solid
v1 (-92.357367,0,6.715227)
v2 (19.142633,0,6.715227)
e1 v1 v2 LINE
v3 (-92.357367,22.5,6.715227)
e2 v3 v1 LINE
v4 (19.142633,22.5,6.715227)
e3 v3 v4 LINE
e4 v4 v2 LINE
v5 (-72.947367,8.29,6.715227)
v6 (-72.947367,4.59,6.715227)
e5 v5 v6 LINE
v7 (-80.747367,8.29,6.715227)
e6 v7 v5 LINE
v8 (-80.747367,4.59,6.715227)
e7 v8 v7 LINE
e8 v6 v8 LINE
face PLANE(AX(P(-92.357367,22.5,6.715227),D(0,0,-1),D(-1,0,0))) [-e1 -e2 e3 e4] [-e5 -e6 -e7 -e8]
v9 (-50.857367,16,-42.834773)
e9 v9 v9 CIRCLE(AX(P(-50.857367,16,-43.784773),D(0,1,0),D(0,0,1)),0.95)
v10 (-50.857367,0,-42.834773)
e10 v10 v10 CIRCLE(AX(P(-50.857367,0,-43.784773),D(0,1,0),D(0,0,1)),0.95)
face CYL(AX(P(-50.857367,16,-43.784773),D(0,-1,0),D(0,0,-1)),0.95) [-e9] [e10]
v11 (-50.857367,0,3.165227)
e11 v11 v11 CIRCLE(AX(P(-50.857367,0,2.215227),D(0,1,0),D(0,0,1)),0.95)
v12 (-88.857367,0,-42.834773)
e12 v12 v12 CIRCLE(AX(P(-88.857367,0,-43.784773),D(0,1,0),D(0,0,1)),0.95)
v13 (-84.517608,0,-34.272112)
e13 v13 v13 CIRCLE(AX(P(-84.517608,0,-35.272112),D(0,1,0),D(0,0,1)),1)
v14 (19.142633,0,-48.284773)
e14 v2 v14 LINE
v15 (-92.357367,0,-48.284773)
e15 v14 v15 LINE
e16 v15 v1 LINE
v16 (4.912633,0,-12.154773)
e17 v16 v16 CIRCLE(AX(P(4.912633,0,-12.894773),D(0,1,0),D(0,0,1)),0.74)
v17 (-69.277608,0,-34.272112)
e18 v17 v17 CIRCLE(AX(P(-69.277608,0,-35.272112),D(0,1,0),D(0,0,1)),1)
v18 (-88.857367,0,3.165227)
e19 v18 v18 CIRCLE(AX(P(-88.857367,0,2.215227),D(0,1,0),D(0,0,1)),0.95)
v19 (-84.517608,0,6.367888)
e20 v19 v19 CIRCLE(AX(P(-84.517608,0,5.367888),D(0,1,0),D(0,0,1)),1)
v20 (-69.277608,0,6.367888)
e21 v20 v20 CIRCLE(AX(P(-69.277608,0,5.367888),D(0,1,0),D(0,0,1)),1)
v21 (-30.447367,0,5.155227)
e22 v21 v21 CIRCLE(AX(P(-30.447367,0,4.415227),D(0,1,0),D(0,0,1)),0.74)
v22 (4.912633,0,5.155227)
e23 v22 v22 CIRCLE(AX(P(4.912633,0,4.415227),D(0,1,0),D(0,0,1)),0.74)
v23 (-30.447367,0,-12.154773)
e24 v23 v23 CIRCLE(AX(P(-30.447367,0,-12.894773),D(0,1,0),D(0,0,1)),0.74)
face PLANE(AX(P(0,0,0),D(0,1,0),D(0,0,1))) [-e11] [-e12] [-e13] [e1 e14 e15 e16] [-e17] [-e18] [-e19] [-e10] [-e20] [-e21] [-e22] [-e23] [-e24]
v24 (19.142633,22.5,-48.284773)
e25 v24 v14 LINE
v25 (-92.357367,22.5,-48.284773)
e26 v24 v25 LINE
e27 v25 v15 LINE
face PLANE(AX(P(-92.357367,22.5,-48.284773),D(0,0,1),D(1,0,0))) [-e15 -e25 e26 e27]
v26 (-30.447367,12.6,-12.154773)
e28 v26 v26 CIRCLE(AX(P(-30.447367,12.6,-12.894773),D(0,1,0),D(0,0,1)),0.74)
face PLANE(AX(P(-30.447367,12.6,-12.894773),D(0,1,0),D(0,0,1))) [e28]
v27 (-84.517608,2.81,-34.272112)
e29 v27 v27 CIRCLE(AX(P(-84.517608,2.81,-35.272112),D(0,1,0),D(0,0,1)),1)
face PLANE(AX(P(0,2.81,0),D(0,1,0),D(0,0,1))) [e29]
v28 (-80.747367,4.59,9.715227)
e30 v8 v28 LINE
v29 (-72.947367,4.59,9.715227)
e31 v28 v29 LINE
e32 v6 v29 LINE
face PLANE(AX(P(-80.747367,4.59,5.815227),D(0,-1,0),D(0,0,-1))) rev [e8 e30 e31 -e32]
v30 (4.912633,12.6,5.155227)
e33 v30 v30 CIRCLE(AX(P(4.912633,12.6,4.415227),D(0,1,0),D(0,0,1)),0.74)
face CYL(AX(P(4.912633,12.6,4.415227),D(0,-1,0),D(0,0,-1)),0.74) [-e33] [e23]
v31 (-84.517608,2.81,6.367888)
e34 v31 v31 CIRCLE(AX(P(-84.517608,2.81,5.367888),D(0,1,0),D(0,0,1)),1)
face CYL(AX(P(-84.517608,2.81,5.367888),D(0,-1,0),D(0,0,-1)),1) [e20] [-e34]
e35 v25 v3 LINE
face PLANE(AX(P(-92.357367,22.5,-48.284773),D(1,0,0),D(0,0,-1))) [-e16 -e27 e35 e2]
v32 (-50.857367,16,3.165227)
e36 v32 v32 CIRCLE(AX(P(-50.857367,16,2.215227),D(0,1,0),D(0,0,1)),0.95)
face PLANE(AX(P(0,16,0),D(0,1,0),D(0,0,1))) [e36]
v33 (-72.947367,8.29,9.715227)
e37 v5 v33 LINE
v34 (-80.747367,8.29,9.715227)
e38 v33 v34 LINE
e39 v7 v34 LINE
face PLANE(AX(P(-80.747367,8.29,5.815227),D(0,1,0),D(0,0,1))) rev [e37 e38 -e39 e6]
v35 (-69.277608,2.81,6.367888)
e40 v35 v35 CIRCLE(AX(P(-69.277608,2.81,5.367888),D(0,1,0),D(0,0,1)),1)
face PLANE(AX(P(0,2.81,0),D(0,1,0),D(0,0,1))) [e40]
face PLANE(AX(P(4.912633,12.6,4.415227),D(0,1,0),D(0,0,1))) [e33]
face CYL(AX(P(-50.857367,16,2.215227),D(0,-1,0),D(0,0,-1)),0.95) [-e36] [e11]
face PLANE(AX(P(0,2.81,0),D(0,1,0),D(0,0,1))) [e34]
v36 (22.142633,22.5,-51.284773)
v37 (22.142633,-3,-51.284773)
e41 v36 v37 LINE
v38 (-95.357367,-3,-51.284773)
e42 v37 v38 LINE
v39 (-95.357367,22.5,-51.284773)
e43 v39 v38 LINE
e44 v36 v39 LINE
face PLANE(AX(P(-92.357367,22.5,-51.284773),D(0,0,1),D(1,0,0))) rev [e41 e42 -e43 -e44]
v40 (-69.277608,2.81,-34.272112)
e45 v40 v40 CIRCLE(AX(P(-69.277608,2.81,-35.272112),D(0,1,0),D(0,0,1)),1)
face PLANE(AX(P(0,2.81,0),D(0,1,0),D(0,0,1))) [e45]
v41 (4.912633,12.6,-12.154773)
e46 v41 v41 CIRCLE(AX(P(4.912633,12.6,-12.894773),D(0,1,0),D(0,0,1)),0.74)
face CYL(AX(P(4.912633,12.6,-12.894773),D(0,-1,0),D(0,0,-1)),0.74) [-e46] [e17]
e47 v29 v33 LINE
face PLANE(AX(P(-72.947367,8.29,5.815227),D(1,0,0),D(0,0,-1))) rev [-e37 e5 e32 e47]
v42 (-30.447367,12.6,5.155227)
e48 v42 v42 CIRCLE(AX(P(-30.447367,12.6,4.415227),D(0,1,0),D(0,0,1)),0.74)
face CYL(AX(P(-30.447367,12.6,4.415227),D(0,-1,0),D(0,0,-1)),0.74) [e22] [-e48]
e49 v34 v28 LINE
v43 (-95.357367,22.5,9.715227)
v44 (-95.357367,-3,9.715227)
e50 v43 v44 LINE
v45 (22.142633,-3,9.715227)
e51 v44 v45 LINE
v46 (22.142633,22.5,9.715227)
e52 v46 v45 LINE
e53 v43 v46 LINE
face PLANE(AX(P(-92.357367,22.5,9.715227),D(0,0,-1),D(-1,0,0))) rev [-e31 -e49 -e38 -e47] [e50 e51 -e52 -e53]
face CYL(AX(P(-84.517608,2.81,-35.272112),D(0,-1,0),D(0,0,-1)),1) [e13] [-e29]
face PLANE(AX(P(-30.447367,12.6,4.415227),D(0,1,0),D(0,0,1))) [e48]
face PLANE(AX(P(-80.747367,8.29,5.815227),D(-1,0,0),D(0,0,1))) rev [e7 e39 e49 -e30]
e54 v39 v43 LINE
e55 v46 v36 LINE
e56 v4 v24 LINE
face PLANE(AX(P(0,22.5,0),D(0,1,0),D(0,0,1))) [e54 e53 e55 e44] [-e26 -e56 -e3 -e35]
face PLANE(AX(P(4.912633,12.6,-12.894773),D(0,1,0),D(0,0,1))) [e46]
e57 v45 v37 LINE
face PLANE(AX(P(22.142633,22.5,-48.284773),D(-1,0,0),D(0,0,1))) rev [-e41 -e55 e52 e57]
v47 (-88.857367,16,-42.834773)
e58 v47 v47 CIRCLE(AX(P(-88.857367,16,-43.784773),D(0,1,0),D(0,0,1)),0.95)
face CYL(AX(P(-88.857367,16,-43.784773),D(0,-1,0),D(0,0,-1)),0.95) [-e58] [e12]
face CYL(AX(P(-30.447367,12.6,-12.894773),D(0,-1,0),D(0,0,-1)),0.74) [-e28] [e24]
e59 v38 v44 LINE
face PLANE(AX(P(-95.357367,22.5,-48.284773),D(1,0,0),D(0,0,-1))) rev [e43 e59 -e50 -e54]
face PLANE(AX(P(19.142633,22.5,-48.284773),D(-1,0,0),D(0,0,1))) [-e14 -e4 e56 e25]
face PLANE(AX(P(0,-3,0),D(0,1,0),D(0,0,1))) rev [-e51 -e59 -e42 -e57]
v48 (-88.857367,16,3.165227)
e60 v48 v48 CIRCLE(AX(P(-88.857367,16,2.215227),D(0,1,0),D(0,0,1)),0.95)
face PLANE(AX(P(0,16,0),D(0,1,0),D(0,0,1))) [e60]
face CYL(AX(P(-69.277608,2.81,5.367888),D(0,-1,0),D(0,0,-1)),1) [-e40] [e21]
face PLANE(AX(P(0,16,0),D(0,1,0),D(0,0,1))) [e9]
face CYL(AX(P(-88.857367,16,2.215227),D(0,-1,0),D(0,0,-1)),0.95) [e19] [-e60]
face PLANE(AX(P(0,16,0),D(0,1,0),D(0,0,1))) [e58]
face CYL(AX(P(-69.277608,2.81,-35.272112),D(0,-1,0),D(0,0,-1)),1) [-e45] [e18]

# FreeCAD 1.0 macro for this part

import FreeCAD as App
import Part
import Sketcher


def faces_at(feature, points):
    """Names of the faces that lie closest to the given points."""
    faces = feature.Shape.Faces
    near = lambda p: min(range(len(faces)), key=lambda i: faces[i].distToShape(Part.Vertex(*p))[0])
    return sorted({f"Face{near(p) + 1}" for p in points})

doc = App.newDocument("Part")
body = doc.addObject("PartDesign::Body", "Body")

# Sketch on XZ plane
sketch1 = doc.addObject("Sketcher::SketchObject", "Sketch")
body.addObject(sketch1)
sketch1.AttachmentSupport = (doc.XZ_Plane, [""])
sketch1.MapMode = "FlatFace"
sketch1.addGeometry(Part.LineSegment(App.Vector(-92, -48, 0), App.Vector(-92, 7, 0)), False)
sketch1.addGeometry(Part.LineSegment(App.Vector(-92, 7, 0), App.Vector(19, 7, 0)), False)
sketch1.addGeometry(Part.LineSegment(App.Vector(19, 7, 0), App.Vector(19, -48, 0)), False)
sketch1.addGeometry(Part.LineSegment(App.Vector(19, -48, 0), App.Vector(-92, -48, 0)), False)
sketch1.addConstraint(Sketcher.Constraint("Coincident", 0, 2, 1, 1))
sketch1.addConstraint(Sketcher.Constraint("Coincident", 1, 2, 2, 1))
sketch1.addConstraint(Sketcher.Constraint("Coincident", 2, 2, 3, 1))
sketch1.addConstraint(Sketcher.Constraint("Coincident", 3, 2, 0, 1))
sketch1.addConstraint(Sketcher.Constraint("Vertical", 0))
sketch1.addConstraint(Sketcher.Constraint("Horizontal", 1))
sketch1.addConstraint(Sketcher.Constraint("Vertical", 2))
sketch1.addConstraint(Sketcher.Constraint("Horizontal", 3))
sketch1.addConstraint(Sketcher.Constraint("DistanceY", 0, 1, 0, 2, 55.0))
sketch1.addConstraint(Sketcher.Constraint("DistanceX", 1, 1, 1, 2, 111.5))
sketch1.addConstraint(Sketcher.Constraint("DistanceX", 0, 2, -1, 1, 92.357367))
sketch1.addConstraint(Sketcher.Constraint("DistanceY", -1, 1, 0, 2, 6.715227))
pad1 = doc.addObject("PartDesign::Pad", "Pad")
body.addObject(pad1)
pad1.Profile = sketch1
pad1.Length = 22.5
pad1.Reversed = True
doc.recompute()

thickness = doc.addObject("PartDesign::Thickness", "Thickness")
body.addObject(thickness)
thickness.Base = (pad1, faces_at(pad1, [(-36.607, 22.5, -20.785)]))
thickness.Value = 3
thickness.Reversed = False
thickness.Join = "Intersection"

# Sketch on XZ plane
sketch2 = doc.addObject("Sketcher::SketchObject", "Sketch001")
body.addObject(sketch2)
sketch2.AttachmentSupport = (doc.XZ_Plane, [""])
sketch2.MapMode = "FlatFace"
sketch2.addGeometry(Part.Circle(App.Vector(-50.9, -43.8, 0), App.Vector(0, 0, 1), 0.9), False)
sketch2.addGeometry(Part.Circle(App.Vector(-88.9, -43.8, 0), App.Vector(0, 0, 1), 0.9), False)
sketch2.addGeometry(Part.Circle(App.Vector(-88.9, 2.2, 0), App.Vector(0, 0, 1), 0.9), False)
sketch2.addGeometry(Part.Circle(App.Vector(-50.9, 2.2, 0), App.Vector(0, 0, 1), 0.9), False)
sketch2.addConstraint(Sketcher.Constraint("Equal", 0, 1))
sketch2.addConstraint(Sketcher.Constraint("Equal", 1, 2))
sketch2.addConstraint(Sketcher.Constraint("Equal", 2, 3))
sketch2.addConstraint(Sketcher.Constraint("Horizontal", 0, 3, 1, 3))
sketch2.addConstraint(Sketcher.Constraint("Horizontal", 2, 3, 3, 3))
sketch2.addConstraint(Sketcher.Constraint("Vertical", 1, 3, 2, 3))
sketch2.addConstraint(Sketcher.Constraint("Vertical", 0, 3, 3, 3))
sketch2.addConstraint(Sketcher.Constraint("Diameter", 0, 1.9))
sketch2.addConstraint(Sketcher.Constraint("DistanceX", 1, 3, 0, 3, 38.0))
sketch2.addConstraint(Sketcher.Constraint("DistanceY", 1, 3, 2, 3, 46.0))
sketch2.addConstraint(Sketcher.Constraint("DistanceX", 0, 3, -1, 1, 50.857367))
sketch2.addConstraint(Sketcher.Constraint("DistanceY", 0, 3, -1, 1, 43.784773))
pad2 = doc.addObject("PartDesign::Pad", "Pad001")
body.addObject(pad2)
pad2.Profile = sketch2
pad2.Length = 16
pad2.Reversed = True

# Sketch on XY plane
sketch3 = doc.addObject("Sketcher::SketchObject", "Sketch002")
body.addObject(sketch3)
sketch3.AttachmentSupport = (doc.XY_Plane, [""])
sketch3.MapMode = "FlatFace"
sketch3.AttachmentOffset = App.Placement(App.Vector(0, 0, 9.715227), App.Rotation())
sketch3.addGeometry(Part.LineSegment(App.Vector(-80.7, 8.3, 0), App.Vector(-80.7, 4.6, 0)), False)
sketch3.addGeometry(Part.LineSegment(App.Vector(-80.7, 4.6, 0), App.Vector(-72.9, 4.6, 0)), False)
sketch3.addGeometry(Part.LineSegment(App.Vector(-72.9, 4.6, 0), App.Vector(-72.9, 8.3, 0)), False)
sketch3.addGeometry(Part.LineSegment(App.Vector(-72.9, 8.3, 0), App.Vector(-80.7, 8.3, 0)), False)
sketch3.addConstraint(Sketcher.Constraint("Coincident", 0, 2, 1, 1))
sketch3.addConstraint(Sketcher.Constraint("Coincident", 1, 2, 2, 1))
sketch3.addConstraint(Sketcher.Constraint("Coincident", 2, 2, 3, 1))
sketch3.addConstraint(Sketcher.Constraint("Coincident", 3, 2, 0, 1))
sketch3.addConstraint(Sketcher.Constraint("Vertical", 0))
sketch3.addConstraint(Sketcher.Constraint("Horizontal", 1))
sketch3.addConstraint(Sketcher.Constraint("Vertical", 2))
sketch3.addConstraint(Sketcher.Constraint("Horizontal", 3))
sketch3.addConstraint(Sketcher.Constraint("DistanceX", 1, 1, 1, 2, 7.8))
sketch3.addConstraint(Sketcher.Constraint("DistanceY", 0, 2, 0, 1, 3.7))
sketch3.addConstraint(Sketcher.Constraint("DistanceY", -1, 1, 0, 2, 4.59))
sketch3.addConstraint(Sketcher.Constraint("DistanceX", 0, 2, -1, 1, 80.747367))
pocket1 = doc.addObject("PartDesign::Pocket", "Pocket")
body.addObject(pocket1)
pocket1.Profile = sketch3
pocket1.Length = 3.9

# Sketch on XZ plane
sketch4 = doc.addObject("Sketcher::SketchObject", "Sketch003")
body.addObject(sketch4)
sketch4.AttachmentSupport = (doc.XZ_Plane, [""])
sketch4.MapMode = "FlatFace"
sketch4.addGeometry(Part.Circle(App.Vector(-84.5, -35.3, 0), App.Vector(0, 0, 1), 1), False)
sketch4.addGeometry(Part.Circle(App.Vector(-69.3, -35.3, 0), App.Vector(0, 0, 1), 1), False)
sketch4.addGeometry(Part.Circle(App.Vector(-69.3, 5.4, 0), App.Vector(0, 0, 1), 1), False)
sketch4.addGeometry(Part.Circle(App.Vector(-84.5, 5.4, 0), App.Vector(0, 0, 1), 1), False)
sketch4.addConstraint(Sketcher.Constraint("Equal", 0, 1))
sketch4.addConstraint(Sketcher.Constraint("Equal", 1, 2))
sketch4.addConstraint(Sketcher.Constraint("Equal", 2, 3))
sketch4.addConstraint(Sketcher.Constraint("Horizontal", 0, 3, 1, 3))
sketch4.addConstraint(Sketcher.Constraint("Horizontal", 2, 3, 3, 3))
sketch4.addConstraint(Sketcher.Constraint("Vertical", 1, 3, 2, 3))
sketch4.addConstraint(Sketcher.Constraint("Vertical", 0, 3, 3, 3))
sketch4.addConstraint(Sketcher.Constraint("Diameter", 0, 2.0))
sketch4.addConstraint(Sketcher.Constraint("DistanceX", 0, 3, 1, 3, 15.24))
sketch4.addConstraint(Sketcher.Constraint("DistanceY", 1, 3, 2, 3, 40.64))
sketch4.addConstraint(Sketcher.Constraint("DistanceY", 0, 3, -1, 1, 35.272112))
sketch4.addConstraint(Sketcher.Constraint("DistanceX", 0, 3, -1, 1, 84.517608))
pad3 = doc.addObject("PartDesign::Pad", "Pad002")
body.addObject(pad3)
pad3.Profile = sketch4
pad3.Length = 2.81
pad3.Reversed = True

# Sketch on XZ plane
sketch5 = doc.addObject("Sketcher::SketchObject", "Sketch004")
body.addObject(sketch5)
sketch5.AttachmentSupport = (doc.XZ_Plane, [""])
sketch5.MapMode = "FlatFace"
sketch5.addGeometry(Part.Circle(App.Vector(-30.4, -12.9, 0), App.Vector(0, 0, 1), 0.7), False)
sketch5.addGeometry(Part.Circle(App.Vector(4.9, -12.9, 0), App.Vector(0, 0, 1), 0.7), False)
sketch5.addGeometry(Part.Circle(App.Vector(4.9, 4.4, 0), App.Vector(0, 0, 1), 0.7), False)
sketch5.addGeometry(Part.Circle(App.Vector(-30.4, 4.4, 0), App.Vector(0, 0, 1), 0.7), False)
sketch5.addConstraint(Sketcher.Constraint("Equal", 0, 1))
sketch5.addConstraint(Sketcher.Constraint("Equal", 1, 2))
sketch5.addConstraint(Sketcher.Constraint("Equal", 2, 3))
sketch5.addConstraint(Sketcher.Constraint("Horizontal", 0, 3, 1, 3))
sketch5.addConstraint(Sketcher.Constraint("Horizontal", 2, 3, 3, 3))
sketch5.addConstraint(Sketcher.Constraint("Vertical", 1, 3, 2, 3))
sketch5.addConstraint(Sketcher.Constraint("Vertical", 0, 3, 3, 3))
sketch5.addConstraint(Sketcher.Constraint("Diameter", 0, 1.48))
sketch5.addConstraint(Sketcher.Constraint("DistanceX", 0, 3, 1, 3, 35.36))
sketch5.addConstraint(Sketcher.Constraint("DistanceY", 1, 3, 2, 3, 17.31))
sketch5.addConstraint(Sketcher.Constraint("DistanceX", 0, 3, -1, 1, 30.447367))
sketch5.addConstraint(Sketcher.Constraint("DistanceY", 0, 3, -1, 1, 12.894773))
pad4 = doc.addObject("PartDesign::Pad", "Pad003")
body.addObject(pad4)
pad4.Profile = sketch5
pad4.Length = 12.6
pad4.Reversed = True

doc.recompute()
